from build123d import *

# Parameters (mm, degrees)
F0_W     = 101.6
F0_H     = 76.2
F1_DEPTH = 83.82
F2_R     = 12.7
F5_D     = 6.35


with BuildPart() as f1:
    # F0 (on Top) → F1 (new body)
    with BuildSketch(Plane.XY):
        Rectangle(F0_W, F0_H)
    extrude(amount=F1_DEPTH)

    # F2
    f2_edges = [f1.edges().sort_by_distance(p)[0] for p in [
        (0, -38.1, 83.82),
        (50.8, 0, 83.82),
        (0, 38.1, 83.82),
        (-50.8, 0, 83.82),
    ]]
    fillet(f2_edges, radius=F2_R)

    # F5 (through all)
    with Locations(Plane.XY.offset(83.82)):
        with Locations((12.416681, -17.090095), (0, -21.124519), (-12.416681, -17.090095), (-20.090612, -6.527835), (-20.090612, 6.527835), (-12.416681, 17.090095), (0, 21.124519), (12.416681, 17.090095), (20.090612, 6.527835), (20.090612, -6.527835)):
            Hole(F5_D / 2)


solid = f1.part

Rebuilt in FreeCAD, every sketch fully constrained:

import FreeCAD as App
import Part
import Sketcher

V = App.Vector
Q = App.Units.Quantity


def edges_at(feature, points):
    """Names of the edges that pass closest to the given points."""
    edges = feature.Shape.Edges
    near = lambda p: min(range(len(edges)), key=lambda i: edges[i].distToShape(Part.Vertex(*p))[0])
    return sorted({f"Edge{near(p) + 1}" for p in points})

doc = App.newDocument("Part")
body = doc.addObject("PartDesign::Body", "Body")

sketch1 = body.newObject("Sketcher::SketchObject", "Sketch")
sketch1.AttachmentSupport = (doc.getObject("XY_Plane"), [""])
sketch1.MapMode = "FlatFace"
sketch1.addGeometry([
    Part.LineSegment(V(-51, 38, 0), V(-51, -38, 0)),
    Part.LineSegment(V(-51, -38, 0), V(51, -38, 0)),
    Part.LineSegment(V(51, -38, 0), V(51, 38, 0)),
    Part.LineSegment(V(51, 38, 0), V(-51, 38, 0)),
], False)
sketch1.addConstraint([
    Sketcher.Constraint("Coincident", 0, 2, 1, 1),
    Sketcher.Constraint("Coincident", 1, 2, 2, 1),
    Sketcher.Constraint("Coincident", 2, 2, 3, 1),
    Sketcher.Constraint("Coincident", 3, 2, 0, 1),
    Sketcher.Constraint("Vertical", 0),
    Sketcher.Constraint("Horizontal", 1),
    Sketcher.Constraint("Vertical", 2),
    Sketcher.Constraint("Horizontal", 3),
    Sketcher.Constraint("Symmetric", 0, 2, 2, 2, -1, 1),
    Sketcher.Constraint("DistanceX", 1, 1, 1, 2, Q("4 in")),
    Sketcher.Constraint("DistanceY", 0, 2, 0, 1, Q("3 in")),
])
pad1 = body.newObject("PartDesign::Pad", "Pad")
pad1.Profile = sketch1
pad1.Length = Q("3.3 in")
doc.recompute()

fillet = body.newObject("PartDesign::Fillet", "Fillet")
fillet.Base = (pad1, edges_at(pad1, [
    (0, -38.1, 83.82),
    (50.8, 0, 83.82),
    (0, 38.1, 83.82),
    (-50.8, 0, 83.82),
]))
fillet.Radius = Q("0.5 in")

sketch2 = body.newObject("Sketcher::SketchObject", "Sketch001")
sketch2.AttachmentSupport = (doc.getObject("XY_Plane"), [""])
sketch2.MapMode = "FlatFace"
sketch2.AttachmentOffset = App.Placement(V(0, 0, 3.3 * 25.4), App.Rotation())
sketch2.addGeometry([
    Part.Circle(V(12.4, -17.1, 0), V(0, 0, 1), 3.2),
    Part.Circle(V(0, -21.1, 0), V(0, 0, 1), 3.2),
    Part.Circle(V(-12.4, -17.1, 0), V(0, 0, 1), 3.2),
    Part.Circle(V(-20.1, -6.5, 0), V(0, 0, 1), 3.2),
    Part.Circle(V(-20.1, 6.5, 0), V(0, 0, 1), 3.2),
    Part.Circle(V(-12.4, 17.1, 0), V(0, 0, 1), 3.2),
    Part.Circle(V(0, 21.1, 0), V(0, 0, 1), 3.2),
    Part.Circle(V(12.4, 17.1, 0), V(0, 0, 1), 3.2),
    Part.Circle(V(20.1, 6.5, 0), V(0, 0, 1), 3.2),
    Part.Circle(V(20.1, -6.5, 0), V(0, 0, 1), 3.2),
], False)
sketch2.addConstraint([
    Sketcher.Constraint("Equal", 0, 1),
    Sketcher.Constraint("Equal", 1, 2),
    Sketcher.Constraint("Equal", 2, 3),
    Sketcher.Constraint("Equal", 3, 4),
    Sketcher.Constraint("Equal", 4, 5),
    Sketcher.Constraint("Equal", 5, 6),
    Sketcher.Constraint("Equal", 6, 7),
    Sketcher.Constraint("Equal", 7, 8),
    Sketcher.Constraint("Equal", 8, 9),
    Sketcher.Constraint("Symmetric", 0, 3, 5, 3, -1, 1),
    Sketcher.Constraint("Symmetric", 1, 3, 6, 3, -1, 1),
    Sketcher.Constraint("Symmetric", 2, 3, 7, 3, -1, 1),
    Sketcher.Constraint("Symmetric", 3, 3, 8, 3, -1, 1),
    Sketcher.Constraint("Symmetric", 4, 3, 9, 3, -1, 1),
    Sketcher.Constraint("Symmetric", 0, 3, 2, 3, -2),
    Sketcher.Constraint("Symmetric", 4, 3, 8, 3, -2),
    Sketcher.Constraint("PointOnObject", 1, 3, -2),
    Sketcher.Constraint("Diameter", 0, Q("0.25 in")),
    Sketcher.Constraint("DistanceX", -1, 1, 0, 3, Q("12.416681 mm")),
    Sketcher.Constraint("DistanceY", 1, 3, -1, 1, Q("21.124519 mm")),
    Sketcher.Constraint("DistanceX", 3, 3, -1, 1, Q("20.090612 mm")),
    Sketcher.Constraint("DistanceY", 2, 3, 3, 3, Q("10.56226 mm")),
    Sketcher.Constraint("DistanceY", 3, 3, 4, 3, Q("13.05567 mm")),
])
doc.recompute()
hole = body.newObject("PartDesign::Hole", "Hole")
hole.Profile = sketch2
hole.ThreadType = "None"
hole.Diameter = Q("0.25 in")
hole.DepthType = "ThroughAll"

doc.recompute()
